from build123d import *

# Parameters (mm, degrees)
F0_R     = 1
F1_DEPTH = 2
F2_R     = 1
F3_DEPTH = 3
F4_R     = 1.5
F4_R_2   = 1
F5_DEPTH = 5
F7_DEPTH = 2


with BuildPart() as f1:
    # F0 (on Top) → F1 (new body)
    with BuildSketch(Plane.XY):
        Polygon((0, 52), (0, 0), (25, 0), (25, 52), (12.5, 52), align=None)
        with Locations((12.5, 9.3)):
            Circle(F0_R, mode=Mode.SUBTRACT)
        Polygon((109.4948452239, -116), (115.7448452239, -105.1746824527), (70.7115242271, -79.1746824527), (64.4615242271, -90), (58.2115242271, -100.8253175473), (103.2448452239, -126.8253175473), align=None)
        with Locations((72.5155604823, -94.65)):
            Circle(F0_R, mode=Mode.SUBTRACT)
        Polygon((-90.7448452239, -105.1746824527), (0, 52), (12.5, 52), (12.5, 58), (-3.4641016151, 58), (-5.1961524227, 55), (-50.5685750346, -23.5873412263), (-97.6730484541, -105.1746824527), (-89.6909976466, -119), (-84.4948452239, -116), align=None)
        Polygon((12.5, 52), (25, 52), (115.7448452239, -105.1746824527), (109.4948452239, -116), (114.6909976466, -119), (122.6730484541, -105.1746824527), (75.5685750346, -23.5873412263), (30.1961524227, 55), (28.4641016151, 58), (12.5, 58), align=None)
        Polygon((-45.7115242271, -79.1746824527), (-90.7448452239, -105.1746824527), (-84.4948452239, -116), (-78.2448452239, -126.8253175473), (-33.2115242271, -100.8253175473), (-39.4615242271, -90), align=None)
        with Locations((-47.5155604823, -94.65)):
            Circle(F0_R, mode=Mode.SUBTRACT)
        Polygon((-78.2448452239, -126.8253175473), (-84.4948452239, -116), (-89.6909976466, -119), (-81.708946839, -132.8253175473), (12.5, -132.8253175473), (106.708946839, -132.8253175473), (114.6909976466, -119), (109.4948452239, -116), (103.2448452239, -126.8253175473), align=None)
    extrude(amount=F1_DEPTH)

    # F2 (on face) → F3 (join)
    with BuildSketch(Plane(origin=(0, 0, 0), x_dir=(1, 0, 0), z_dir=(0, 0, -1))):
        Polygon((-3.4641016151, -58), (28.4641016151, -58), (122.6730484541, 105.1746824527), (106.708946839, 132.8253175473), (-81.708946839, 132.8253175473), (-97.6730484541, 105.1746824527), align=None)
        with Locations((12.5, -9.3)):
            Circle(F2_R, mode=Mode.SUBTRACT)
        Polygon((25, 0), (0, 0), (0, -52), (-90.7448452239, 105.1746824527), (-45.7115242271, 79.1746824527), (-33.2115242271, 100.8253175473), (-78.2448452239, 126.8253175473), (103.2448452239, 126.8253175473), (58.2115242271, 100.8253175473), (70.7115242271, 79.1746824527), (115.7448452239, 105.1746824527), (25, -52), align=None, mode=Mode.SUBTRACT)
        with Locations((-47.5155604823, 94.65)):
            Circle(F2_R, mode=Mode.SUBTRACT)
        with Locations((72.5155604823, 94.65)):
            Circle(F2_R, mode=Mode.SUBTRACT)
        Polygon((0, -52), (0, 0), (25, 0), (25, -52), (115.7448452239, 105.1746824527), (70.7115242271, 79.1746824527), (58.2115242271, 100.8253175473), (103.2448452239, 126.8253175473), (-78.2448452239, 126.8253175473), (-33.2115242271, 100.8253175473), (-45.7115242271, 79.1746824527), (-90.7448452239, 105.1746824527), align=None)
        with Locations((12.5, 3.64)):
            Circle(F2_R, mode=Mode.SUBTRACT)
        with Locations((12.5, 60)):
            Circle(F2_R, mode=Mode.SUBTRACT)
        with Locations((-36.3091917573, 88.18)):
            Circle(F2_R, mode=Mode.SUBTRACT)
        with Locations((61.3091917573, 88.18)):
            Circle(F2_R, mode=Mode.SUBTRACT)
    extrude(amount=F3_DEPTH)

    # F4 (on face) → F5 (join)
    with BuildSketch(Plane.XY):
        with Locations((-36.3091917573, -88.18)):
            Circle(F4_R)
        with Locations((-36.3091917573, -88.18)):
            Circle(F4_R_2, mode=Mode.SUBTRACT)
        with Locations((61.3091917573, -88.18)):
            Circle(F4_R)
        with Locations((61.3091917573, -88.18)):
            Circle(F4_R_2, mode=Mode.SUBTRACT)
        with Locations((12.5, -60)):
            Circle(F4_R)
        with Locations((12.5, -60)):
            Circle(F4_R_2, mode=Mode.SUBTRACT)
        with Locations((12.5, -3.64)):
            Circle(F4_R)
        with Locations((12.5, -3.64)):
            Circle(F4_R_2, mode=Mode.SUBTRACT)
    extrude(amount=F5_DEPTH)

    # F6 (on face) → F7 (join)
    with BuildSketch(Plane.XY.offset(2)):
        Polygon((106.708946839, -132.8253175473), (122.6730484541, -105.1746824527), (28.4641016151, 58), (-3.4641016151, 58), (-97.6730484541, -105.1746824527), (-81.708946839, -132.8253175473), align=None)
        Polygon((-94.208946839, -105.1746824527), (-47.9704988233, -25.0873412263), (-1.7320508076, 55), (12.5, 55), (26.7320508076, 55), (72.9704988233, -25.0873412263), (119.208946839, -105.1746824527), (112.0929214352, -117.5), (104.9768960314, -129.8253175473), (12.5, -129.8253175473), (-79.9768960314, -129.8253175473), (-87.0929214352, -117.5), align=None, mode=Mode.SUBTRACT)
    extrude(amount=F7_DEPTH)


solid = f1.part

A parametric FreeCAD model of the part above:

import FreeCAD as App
import Part
import Sketcher
from FreeCAD import Vector
Q = App.Units.Quantity

doc = App.newDocument("Part")
params = doc.addObject("Spreadsheet::Sheet", "Params")
for row, (alias, value) in enumerate([
    ("sketch1_diameter", "2 mm"),
    ("sketch1_width", "25 mm"),
    ("sketch1_height", "52 mm"),
    ("sketch1_length", "52 mm"),
    ("sketch1_length2", "25 mm"),
    ("pad1_length", "2 mm"),
    ("sketch2_diameter", "2 mm"),
    ("pad2_length", "3 mm"),
    ("sketch3_diameter", "3 mm"),
    ("sketch3_diameter2", "2 mm"),
    ("pad3_length", "5 mm"),
    ("pad4_length", "2 mm"),
], start=1):
    params.set(f"A{row}", alias)
    params.set(f"B{row}", "=" + value)
    params.setAlias(f"B{row}", alias)

body = doc.addObject("PartDesign::Body", "Body")

# Sketch on XY plane
sketch1 = body.newObject("Sketcher::SketchObject", "Sketch")
sketch1.AttachmentSupport = (doc.getObject("XY_Plane"), [""])
sketch1.MapMode = "FlatFace"
sketch1.addGeometry([
    Part.LineSegment(Vector(-97.7, -105.2, 0), Vector(-89.7, -119, 0)),  # 0
    Part.LineSegment(Vector(-89.7, -119, 0), Vector(-81.7, -132.8, 0)),  # 1
    Part.LineSegment(Vector(-81.7, -132.8, 0), Vector(106.7, -132.8, 0)),  # 2
    Part.LineSegment(Vector(106.7, -132.8, 0), Vector(114.7, -119, 0)),  # 3
    Part.LineSegment(Vector(114.7, -119, 0), Vector(122.7, -105.2, 0)),  # 4
    Part.LineSegment(Vector(122.7, -105.2, 0), Vector(30.2, 55, 0)),  # 5
    Part.LineSegment(Vector(30.2, 55, 0), Vector(28.5, 58, 0)),  # 6
    Part.LineSegment(Vector(28.5, 58, 0), Vector(-3.5, 58, 0)),  # 7
    Part.LineSegment(Vector(-3.5, 58, 0), Vector(-5.2, 55, 0)),  # 8
    Part.LineSegment(Vector(-5.2, 55, 0), Vector(-97.7, -105.2, 0)),  # 9
    Part.LineSegment(Vector(0, 52, 0), Vector(0, 0, 0)),  # 10
    Part.LineSegment(Vector(0, 0, 0), Vector(25, 0, 0)),  # 11
    Part.LineSegment(Vector(25, 0, 0), Vector(25, 52, 0)),  # 12
    Part.LineSegment(Vector(25, 52, 0), Vector(115.7, -105.2, 0)),  # 13
    Part.LineSegment(Vector(115.7, -105.2, 0), Vector(70.7, -79.2, 0)),  # 14
    Part.LineSegment(Vector(70.7, -79.2, 0), Vector(58.2, -100.8, 0)),  # 15
    Part.LineSegment(Vector(58.2, -100.8, 0), Vector(103.2, -126.8, 0)),  # 16
    Part.LineSegment(Vector(103.2, -126.8, 0), Vector(-78.2, -126.8, 0)),  # 17
    Part.LineSegment(Vector(-78.2, -126.8, 0), Vector(-33.2, -100.8, 0)),  # 18
    Part.LineSegment(Vector(-33.2, -100.8, 0), Vector(-45.7, -79.2, 0)),  # 19
    Part.LineSegment(Vector(-45.7, -79.2, 0), Vector(-90.7, -105.2, 0)),  # 20
    Part.LineSegment(Vector(-90.7, -105.2, 0), Vector(0, 52, 0)),  # 21
    Part.Circle(Vector(-47.5, -94.7, 0), Vector(0, 0, 1), 1),  # 22
    Part.Circle(Vector(72.5, -94.7, 0), Vector(0, 0, 1), 1),  # 23
    Part.Circle(Vector(12.5, 9.3, 0), Vector(0, 0, 1), 1),  # 24
], False)
sketch1.addConstraint([
    Sketcher.Constraint("Coincident", 0, 2, 1, 1),
    Sketcher.Constraint("Coincident", 1, 2, 2, 1),
    Sketcher.Constraint("Coincident", 2, 2, 3, 1),
    Sketcher.Constraint("Coincident", 3, 2, 4, 1),
    Sketcher.Constraint("Coincident", 4, 2, 5, 1),
    Sketcher.Constraint("Coincident", 5, 2, 6, 1),
    Sketcher.Constraint("Coincident", 6, 2, 7, 1),
    Sketcher.Constraint("Coincident", 7, 2, 8, 1),
    Sketcher.Constraint("Coincident", 8, 2, 9, 1),
    Sketcher.Constraint("Coincident", 9, 2, 0, 1),
    Sketcher.Constraint("Coincident", 10, 2, 11, 1),
    Sketcher.Constraint("Coincident", 11, 2, 12, 1),
    Sketcher.Constraint("Coincident", 12, 2, 13, 1),
    Sketcher.Constraint("Coincident", 13, 2, 14, 1),
    Sketcher.Constraint("Coincident", 14, 2, 15, 1),
    Sketcher.Constraint("Coincident", 15, 2, 16, 1),
    Sketcher.Constraint("Coincident", 16, 2, 17, 1),
    Sketcher.Constraint("Coincident", 17, 2, 18, 1),
    Sketcher.Constraint("Coincident", 18, 2, 19, 1),
    Sketcher.Constraint("Coincident", 19, 2, 20, 1),
    Sketcher.Constraint("Coincident", 20, 2, 21, 1),
    Sketcher.Constraint("Coincident", 21, 2, 10, 1),
    Sketcher.Constraint("Horizontal", 2),
    Sketcher.Constraint("Horizontal", 7),
    Sketcher.Constraint("Vertical", 10),
    Sketcher.Constraint("Horizontal", 11),
    Sketcher.Constraint("Vertical", 12),
    Sketcher.Constraint("Horizontal", 17),
    Sketcher.Constraint("Coincident", 10, 2, -1, 1),
    Sketcher.Constraint("Equal", 22, 23),
    Sketcher.Constraint("Equal", 23, 24),
    Sketcher.Constraint("Parallel", 0, 1),
    Sketcher.Constraint("Parallel", 3, 4),
    Sketcher.Constraint("Parallel", 1, 5),
    Sketcher.Constraint("Parallel", 5, 6),
    Sketcher.Constraint("Parallel", 4, 8),
    Sketcher.Constraint("Parallel", 8, 9),
    Sketcher.Constraint("Parallel", 6, 13),
    Sketcher.Constraint("Perpendicular", 9, 14),
    Sketcher.Constraint("Perpendicular", 14, 15),
    Sketcher.Constraint("Perpendicular", 15, 16),
    Sketcher.Constraint("Perpendicular", 13, 18),
    Sketcher.Constraint("Perpendicular", 18, 19),
    Sketcher.Constraint("Perpendicular", 19, 20),
    Sketcher.Constraint("Perpendicular", 16, 21),
    Sketcher.Constraint("Horizontal", 22, 3, 23, 3),
    Sketcher.Constraint("Horizontal", 0, 2, 3, 2),
    Sketcher.Constraint("Horizontal", 5, 2, 8, 2),
    Sketcher.Constraint("Horizontal", 4, 2, 9, 2),
    Sketcher.Constraint("Horizontal", 9, 2, 13, 2),
    Sketcher.Constraint("Horizontal", 15, 2, 18, 2),
    Sketcher.Constraint("Horizontal", 14, 2, 19, 2),
    Sketcher.Constraint("Horizontal", 13, 2, 20, 2),
    Sketcher.Constraint("Horizontal", 12, 2, 21, 2),
    Sketcher.Constraint("Equal", 0, 1),
    Sketcher.Constraint("Equal", 1, 3),
    Sketcher.Constraint("Equal", 14, 16),
    Sketcher.Constraint("Diameter", 22, 2.0),
    Sketcher.Constraint("DistanceX", 11, 1, 11, 2, 25.0),
    Sketcher.Constraint("DistanceY", 10, 2, 10, 1, 52.0),
    Sketcher.Constraint("Angle", 0, Q("-60 deg")),
    Sketcher.Constraint("Distance", 14, 52.0),
    Sketcher.Constraint("Distance", 15, 25.0),
    Sketcher.Constraint("DistanceY", 0, 2, -1, 1, 119.0),
    Sketcher.Constraint("DistanceY", -1, 1, 5, 2, 55.0),
    Sketcher.Constraint("DistanceY", -1, 1, 6, 2, 58.0),
    Sketcher.Constraint("DistanceY", 2, 2, 15, 2, 32.0),
    Sketcher.Constraint("DistanceX", -1, 1, 24, 3, 12.5),
    Sketcher.Constraint("DistanceY", -1, 1, 24, 3, 9.3),
    Sketcher.Constraint("DistanceY", 22, 3, -1, 1, 94.65),
    Sketcher.Constraint("DistanceX", -1, 1, 6, 2, 28.464102),
    Sketcher.Constraint("DistanceX", 7, 2, -1, 1, 3.464102),
    Sketcher.Constraint("DistanceX", 22, 3, -1, 1, 47.51556),
    Sketcher.Constraint("DistanceX", -1, 1, 23, 3, 72.51556),
])
sketch1.setExpression("Constraints[57]", "Params.sketch1_diameter")
sketch1.setExpression("Constraints[58]", "Params.sketch1_width")
sketch1.setExpression("Constraints[59]", "Params.sketch1_height")
sketch1.setExpression("Constraints[61]", "Params.sketch1_length")
sketch1.setExpression("Constraints[62]", "Params.sketch1_length2")
pad1 = body.newObject("PartDesign::Pad", "Pad")
pad1.Profile = sketch1
pad1.setExpression("Length", "Params.pad1_length")

# Sketch on XY plane
sketch2 = body.newObject("Sketcher::SketchObject", "Sketch001")
sketch2.AttachmentSupport = (doc.getObject("XY_Plane"), [""])
sketch2.MapMode = "FlatFace"
sketch2.addGeometry([
    Part.LineSegment(Vector(-3.5, 58, 0), Vector(28.5, 58, 0)),  # 0
    Part.LineSegment(Vector(28.5, 58, 0), Vector(122.7, -105.2, 0)),  # 1
    Part.LineSegment(Vector(122.7, -105.2, 0), Vector(106.7, -132.8, 0)),  # 2
    Part.LineSegment(Vector(106.7, -132.8, 0), Vector(-81.7, -132.8, 0)),  # 3
    Part.LineSegment(Vector(-81.7, -132.8, 0), Vector(-97.7, -105.2, 0)),  # 4
    Part.LineSegment(Vector(-97.7, -105.2, 0), Vector(-3.5, 58, 0)),  # 5
    Part.Circle(Vector(12.5, 9.3, 0), Vector(0, 0, 1), 1),  # 6
    Part.Circle(Vector(12.5, -3.6, 0), Vector(0, 0, 1), 1),  # 7
    Part.Circle(Vector(12.5, -60, 0), Vector(0, 0, 1), 1),  # 8
    Part.Circle(Vector(-36.3, -88.2, 0), Vector(0, 0, 1), 1),  # 9
    Part.Circle(Vector(-47.5, -94.7, 0), Vector(0, 0, 1), 1),  # 10
    Part.Circle(Vector(61.3, -88.2, 0), Vector(0, 0, 1), 1),  # 11
    Part.Circle(Vector(72.5, -94.7, 0), Vector(0, 0, 1), 1),  # 12
], False)
sketch2.addConstraint([
    Sketcher.Constraint("Coincident", 0, 2, 1, 1),
    Sketcher.Constraint("Coincident", 1, 2, 2, 1),
    Sketcher.Constraint("Coincident", 2, 2, 3, 1),
    Sketcher.Constraint("Coincident", 3, 2, 4, 1),
    Sketcher.Constraint("Coincident", 4, 2, 5, 1),
    Sketcher.Constraint("Coincident", 5, 2, 0, 1),
    Sketcher.Constraint("Horizontal", 0),
    Sketcher.Constraint("Horizontal", 3),
    Sketcher.Constraint("Equal", 6, 7),
    Sketcher.Constraint("Equal", 7, 8),
    Sketcher.Constraint("Equal", 8, 9),
    Sketcher.Constraint("Equal", 9, 10),
    Sketcher.Constraint("Equal", 10, 11),
    Sketcher.Constraint("Equal", 11, 12),
    Sketcher.Constraint("Parallel", 1, 4),
    Sketcher.Constraint("Parallel", 2, 5),
    Sketcher.Constraint("Horizontal", 9, 3, 11, 3),
    Sketcher.Constraint("Horizontal", 10, 3, 12, 3),
    Sketcher.Constraint("Horizontal", 1, 2, 4, 2),
    Sketcher.Constraint("Vertical", 6, 3, 7, 3),
    Sketcher.Constraint("Vertical", 7, 3, 8, 3),
    Sketcher.Constraint("Equal", 2, 4),
    Sketcher.Constraint("Diameter", 6, 2.0),
    Sketcher.Constraint("Angle", 1, Q("-60 deg")),
    Sketcher.Constraint("DistanceY", 8, 3, -1, 1, 60.0),
    Sketcher.Constraint("DistanceY", -1, 1, 0, 2, 58.0),
    Sketcher.Constraint("DistanceX", -1, 1, 6, 3, 12.5),
    Sketcher.Constraint("DistanceY", -1, 1, 6, 3, 9.3),
    Sketcher.Constraint("DistanceY", 7, 3, -1, 1, 3.64),
    Sketcher.Constraint("DistanceY", 9, 3, -1, 1, 88.18),
    Sketcher.Constraint("DistanceY", 10, 3, -1, 1, 94.65),
    Sketcher.Constraint("DistanceX", -1, 1, 0, 2, 28.464102),
    Sketcher.Constraint("DistanceX", 5, 2, -1, 1, 3.464102),
    Sketcher.Constraint("DistanceX", 2, 2, 1, 2, 15.964102),
    Sketcher.Constraint("DistanceX", 3, 2, 3, 1, 188.417894),
    Sketcher.Constraint("DistanceX", 9, 3, -1, 1, 36.309192),
    Sketcher.Constraint("DistanceX", 10, 3, -1, 1, 47.51556),
    Sketcher.Constraint("DistanceX", -1, 1, 11, 3, 61.309192),
    Sketcher.Constraint("DistanceX", -1, 1, 12, 3, 72.51556),
])
sketch2.setExpression("Constraints[22]", "Params.sketch2_diameter")
pad2 = body.newObject("PartDesign::Pad", "Pad001")
pad2.Profile = sketch2
pad2.setExpression("Length", "Params.pad2_length")
pad2.Reversed = True

# Sketch on XY plane
sketch3 = body.newObject("Sketcher::SketchObject", "Sketch002")
sketch3.AttachmentSupport = (doc.getObject("XY_Plane"), [""])
sketch3.MapMode = "FlatFace"
sketch3.addGeometry([
    Part.Circle(Vector(-36.3, -88.2, 0), Vector(0, 0, 1), 1.5),  # 0
    Part.Circle(Vector(-36.3, -88.2, 0), Vector(0, 0, 1), 1),  # 1
    Part.Circle(Vector(61.3, -88.2, 0), Vector(0, 0, 1), 1.5),  # 2
    Part.Circle(Vector(61.3, -88.2, 0), Vector(0, 0, 1), 1),  # 3
    Part.Circle(Vector(12.5, -60, 0), Vector(0, 0, 1), 1.5),  # 4
    Part.Circle(Vector(12.5, -60, 0), Vector(0, 0, 1), 1),  # 5
    Part.Circle(Vector(12.5, -3.6, 0), Vector(0, 0, 1), 1.5),  # 6
    Part.Circle(Vector(12.5, -3.6, 0), Vector(0, 0, 1), 1),  # 7
], False)
sketch3.addConstraint([
    Sketcher.Constraint("Coincident", 1, 3, 0, 3),
    Sketcher.Constraint("Coincident", 3, 3, 2, 3),
    Sketcher.Constraint("Coincident", 5, 3, 4, 3),
    Sketcher.Constraint("Coincident", 7, 3, 6, 3),
    Sketcher.Constraint("Equal", 0, 2),
    Sketcher.Constraint("Equal", 1, 3),
    Sketcher.Constraint("Equal", 2, 4),
    Sketcher.Constraint("Equal", 3, 5),
    Sketcher.Constraint("Equal", 4, 6),
    Sketcher.Constraint("Equal", 5, 7),
    Sketcher.Constraint("Horizontal", 1, 3, 2, 3),
    Sketcher.Constraint("Vertical", 5, 3, 6, 3),
    Sketcher.Constraint("Diameter", 0, 3.0),
    Sketcher.Constraint("Diameter", 1, 2.0),
    Sketcher.Constraint("DistanceY", 4, 3, -1, 1, 60.0),
    Sketcher.Constraint("DistanceX", -1, 1, 4, 3, 12.5),
    Sketcher.Constraint("DistanceY", 0, 3, -1, 1, 88.18),
    Sketcher.Constraint("DistanceY", 6, 3, -1, 1, 3.64),
    Sketcher.Constraint("DistanceX", 0, 3, -1, 1, 36.309192),
    Sketcher.Constraint("DistanceX", -1, 1, 2, 3, 61.309192),
])
sketch3.setExpression("Constraints[12]", "Params.sketch3_diameter")
sketch3.setExpression("Constraints[13]", "Params.sketch3_diameter2")
pad3 = body.newObject("PartDesign::Pad", "Pad002")
pad3.Profile = sketch3
pad3.setExpression("Length", "Params.pad3_length")

# Sketch on XY plane
sketch4 = body.newObject("Sketcher::SketchObject", "Sketch003")
sketch4.AttachmentSupport = (doc.getObject("XY_Plane"), [""])
sketch4.MapMode = "FlatFace"
sketch4.AttachmentOffset = App.Placement(Vector(0, 0, 2), App.Rotation())
sketch4.addGeometry([
    Part.LineSegment(Vector(107, -133, 0), Vector(123, -105, 0)),  # 0
    Part.LineSegment(Vector(123, -105, 0), Vector(28, 58, 0)),  # 1
    Part.LineSegment(Vector(28, 58, 0), Vector(-3, 58, 0)),  # 2
    Part.LineSegment(Vector(-3, 58, 0), Vector(-98, -105, 0)),  # 3
    Part.LineSegment(Vector(-98, -105, 0), Vector(-82, -133, 0)),  # 4
    Part.LineSegment(Vector(-82, -133, 0), Vector(107, -133, 0)),  # 5
    Part.LineSegment(Vector(-80, -130, 0), Vector(-94, -105, 0)),  # 6
    Part.LineSegment(Vector(-94, -105, 0), Vector(-2, 55, 0)),  # 7
    Part.LineSegment(Vector(-2, 55, 0), Vector(27, 55, 0)),  # 8
    Part.LineSegment(Vector(27, 55, 0), Vector(119, -105, 0)),  # 9
    Part.LineSegment(Vector(119, -105, 0), Vector(105, -130, 0)),  # 10
    Part.LineSegment(Vector(105, -130, 0), Vector(-80, -130, 0)),  # 11
], False)
sketch4.addConstraint([
    Sketcher.Constraint("Coincident", 0, 2, 1, 1),
    Sketcher.Constraint("Coincident", 1, 2, 2, 1),
    Sketcher.Constraint("Coincident", 2, 2, 3, 1),
    Sketcher.Constraint("Coincident", 3, 2, 4, 1),
    Sketcher.Constraint("Coincident", 4, 2, 5, 1),
    Sketcher.Constraint("Coincident", 5, 2, 0, 1),
    Sketcher.Constraint("Coincident", 6, 2, 7, 1),
    Sketcher.Constraint("Coincident", 7, 2, 8, 1),
    Sketcher.Constraint("Coincident", 8, 2, 9, 1),
    Sketcher.Constraint("Coincident", 9, 2, 10, 1),
    Sketcher.Constraint("Coincident", 10, 2, 11, 1),
    Sketcher.Constraint("Coincident", 11, 2, 6, 1),
    Sketcher.Constraint("Horizontal", 2),
    Sketcher.Constraint("Horizontal", 5),
    Sketcher.Constraint("Horizontal", 8),
    Sketcher.Constraint("Horizontal", 11),
    Sketcher.Constraint("Parallel", 0, 3),
    Sketcher.Constraint("Parallel", 1, 4),
    Sketcher.Constraint("Parallel", 4, 6),
    Sketcher.Constraint("Parallel", 3, 7),
    Sketcher.Constraint("Parallel", 6, 9),
    Sketcher.Constraint("Parallel", 7, 10),
    Sketcher.Constraint("Horizontal", 0, 2, 3, 2),
    Sketcher.Constraint("Horizontal", 3, 2, 6, 2),
    Sketcher.Constraint("Horizontal", 6, 2, 9, 2),
    Sketcher.Constraint("Equal", 1, 3),
    Sketcher.Constraint("Angle", 0, Q("60 deg")),
    Sketcher.Constraint("DistanceY", -1, 1, 1, 2, 58.0),
    Sketcher.Constraint("DistanceY", -1, 1, 7, 2, 55.0),
    Sketcher.Constraint("DistanceY", 5, 2, 10, 2, 3.0),
    Sketcher.Constraint("DistanceX", 6, 2, 4, 2, 12.5),
    Sketcher.Constraint("DistanceX", 5, 2, 9, 2, 12.5),
    Sketcher.Constraint("DistanceX", 8, 1, 8, 2, 28.464102),
    Sketcher.Constraint("Distance", 6, 28.464102),
    Sketcher.Constraint("DistanceX", -1, 1, 1, 2, 28.464102),
    Sketcher.Constraint("DistanceX", 7, 2, 0, 2, 124.405099),
])
pad4 = body.newObject("PartDesign::Pad", "Pad003")
pad4.Profile = sketch4
pad4.setExpression("Length", "Params.pad4_length")

doc.recompute()
